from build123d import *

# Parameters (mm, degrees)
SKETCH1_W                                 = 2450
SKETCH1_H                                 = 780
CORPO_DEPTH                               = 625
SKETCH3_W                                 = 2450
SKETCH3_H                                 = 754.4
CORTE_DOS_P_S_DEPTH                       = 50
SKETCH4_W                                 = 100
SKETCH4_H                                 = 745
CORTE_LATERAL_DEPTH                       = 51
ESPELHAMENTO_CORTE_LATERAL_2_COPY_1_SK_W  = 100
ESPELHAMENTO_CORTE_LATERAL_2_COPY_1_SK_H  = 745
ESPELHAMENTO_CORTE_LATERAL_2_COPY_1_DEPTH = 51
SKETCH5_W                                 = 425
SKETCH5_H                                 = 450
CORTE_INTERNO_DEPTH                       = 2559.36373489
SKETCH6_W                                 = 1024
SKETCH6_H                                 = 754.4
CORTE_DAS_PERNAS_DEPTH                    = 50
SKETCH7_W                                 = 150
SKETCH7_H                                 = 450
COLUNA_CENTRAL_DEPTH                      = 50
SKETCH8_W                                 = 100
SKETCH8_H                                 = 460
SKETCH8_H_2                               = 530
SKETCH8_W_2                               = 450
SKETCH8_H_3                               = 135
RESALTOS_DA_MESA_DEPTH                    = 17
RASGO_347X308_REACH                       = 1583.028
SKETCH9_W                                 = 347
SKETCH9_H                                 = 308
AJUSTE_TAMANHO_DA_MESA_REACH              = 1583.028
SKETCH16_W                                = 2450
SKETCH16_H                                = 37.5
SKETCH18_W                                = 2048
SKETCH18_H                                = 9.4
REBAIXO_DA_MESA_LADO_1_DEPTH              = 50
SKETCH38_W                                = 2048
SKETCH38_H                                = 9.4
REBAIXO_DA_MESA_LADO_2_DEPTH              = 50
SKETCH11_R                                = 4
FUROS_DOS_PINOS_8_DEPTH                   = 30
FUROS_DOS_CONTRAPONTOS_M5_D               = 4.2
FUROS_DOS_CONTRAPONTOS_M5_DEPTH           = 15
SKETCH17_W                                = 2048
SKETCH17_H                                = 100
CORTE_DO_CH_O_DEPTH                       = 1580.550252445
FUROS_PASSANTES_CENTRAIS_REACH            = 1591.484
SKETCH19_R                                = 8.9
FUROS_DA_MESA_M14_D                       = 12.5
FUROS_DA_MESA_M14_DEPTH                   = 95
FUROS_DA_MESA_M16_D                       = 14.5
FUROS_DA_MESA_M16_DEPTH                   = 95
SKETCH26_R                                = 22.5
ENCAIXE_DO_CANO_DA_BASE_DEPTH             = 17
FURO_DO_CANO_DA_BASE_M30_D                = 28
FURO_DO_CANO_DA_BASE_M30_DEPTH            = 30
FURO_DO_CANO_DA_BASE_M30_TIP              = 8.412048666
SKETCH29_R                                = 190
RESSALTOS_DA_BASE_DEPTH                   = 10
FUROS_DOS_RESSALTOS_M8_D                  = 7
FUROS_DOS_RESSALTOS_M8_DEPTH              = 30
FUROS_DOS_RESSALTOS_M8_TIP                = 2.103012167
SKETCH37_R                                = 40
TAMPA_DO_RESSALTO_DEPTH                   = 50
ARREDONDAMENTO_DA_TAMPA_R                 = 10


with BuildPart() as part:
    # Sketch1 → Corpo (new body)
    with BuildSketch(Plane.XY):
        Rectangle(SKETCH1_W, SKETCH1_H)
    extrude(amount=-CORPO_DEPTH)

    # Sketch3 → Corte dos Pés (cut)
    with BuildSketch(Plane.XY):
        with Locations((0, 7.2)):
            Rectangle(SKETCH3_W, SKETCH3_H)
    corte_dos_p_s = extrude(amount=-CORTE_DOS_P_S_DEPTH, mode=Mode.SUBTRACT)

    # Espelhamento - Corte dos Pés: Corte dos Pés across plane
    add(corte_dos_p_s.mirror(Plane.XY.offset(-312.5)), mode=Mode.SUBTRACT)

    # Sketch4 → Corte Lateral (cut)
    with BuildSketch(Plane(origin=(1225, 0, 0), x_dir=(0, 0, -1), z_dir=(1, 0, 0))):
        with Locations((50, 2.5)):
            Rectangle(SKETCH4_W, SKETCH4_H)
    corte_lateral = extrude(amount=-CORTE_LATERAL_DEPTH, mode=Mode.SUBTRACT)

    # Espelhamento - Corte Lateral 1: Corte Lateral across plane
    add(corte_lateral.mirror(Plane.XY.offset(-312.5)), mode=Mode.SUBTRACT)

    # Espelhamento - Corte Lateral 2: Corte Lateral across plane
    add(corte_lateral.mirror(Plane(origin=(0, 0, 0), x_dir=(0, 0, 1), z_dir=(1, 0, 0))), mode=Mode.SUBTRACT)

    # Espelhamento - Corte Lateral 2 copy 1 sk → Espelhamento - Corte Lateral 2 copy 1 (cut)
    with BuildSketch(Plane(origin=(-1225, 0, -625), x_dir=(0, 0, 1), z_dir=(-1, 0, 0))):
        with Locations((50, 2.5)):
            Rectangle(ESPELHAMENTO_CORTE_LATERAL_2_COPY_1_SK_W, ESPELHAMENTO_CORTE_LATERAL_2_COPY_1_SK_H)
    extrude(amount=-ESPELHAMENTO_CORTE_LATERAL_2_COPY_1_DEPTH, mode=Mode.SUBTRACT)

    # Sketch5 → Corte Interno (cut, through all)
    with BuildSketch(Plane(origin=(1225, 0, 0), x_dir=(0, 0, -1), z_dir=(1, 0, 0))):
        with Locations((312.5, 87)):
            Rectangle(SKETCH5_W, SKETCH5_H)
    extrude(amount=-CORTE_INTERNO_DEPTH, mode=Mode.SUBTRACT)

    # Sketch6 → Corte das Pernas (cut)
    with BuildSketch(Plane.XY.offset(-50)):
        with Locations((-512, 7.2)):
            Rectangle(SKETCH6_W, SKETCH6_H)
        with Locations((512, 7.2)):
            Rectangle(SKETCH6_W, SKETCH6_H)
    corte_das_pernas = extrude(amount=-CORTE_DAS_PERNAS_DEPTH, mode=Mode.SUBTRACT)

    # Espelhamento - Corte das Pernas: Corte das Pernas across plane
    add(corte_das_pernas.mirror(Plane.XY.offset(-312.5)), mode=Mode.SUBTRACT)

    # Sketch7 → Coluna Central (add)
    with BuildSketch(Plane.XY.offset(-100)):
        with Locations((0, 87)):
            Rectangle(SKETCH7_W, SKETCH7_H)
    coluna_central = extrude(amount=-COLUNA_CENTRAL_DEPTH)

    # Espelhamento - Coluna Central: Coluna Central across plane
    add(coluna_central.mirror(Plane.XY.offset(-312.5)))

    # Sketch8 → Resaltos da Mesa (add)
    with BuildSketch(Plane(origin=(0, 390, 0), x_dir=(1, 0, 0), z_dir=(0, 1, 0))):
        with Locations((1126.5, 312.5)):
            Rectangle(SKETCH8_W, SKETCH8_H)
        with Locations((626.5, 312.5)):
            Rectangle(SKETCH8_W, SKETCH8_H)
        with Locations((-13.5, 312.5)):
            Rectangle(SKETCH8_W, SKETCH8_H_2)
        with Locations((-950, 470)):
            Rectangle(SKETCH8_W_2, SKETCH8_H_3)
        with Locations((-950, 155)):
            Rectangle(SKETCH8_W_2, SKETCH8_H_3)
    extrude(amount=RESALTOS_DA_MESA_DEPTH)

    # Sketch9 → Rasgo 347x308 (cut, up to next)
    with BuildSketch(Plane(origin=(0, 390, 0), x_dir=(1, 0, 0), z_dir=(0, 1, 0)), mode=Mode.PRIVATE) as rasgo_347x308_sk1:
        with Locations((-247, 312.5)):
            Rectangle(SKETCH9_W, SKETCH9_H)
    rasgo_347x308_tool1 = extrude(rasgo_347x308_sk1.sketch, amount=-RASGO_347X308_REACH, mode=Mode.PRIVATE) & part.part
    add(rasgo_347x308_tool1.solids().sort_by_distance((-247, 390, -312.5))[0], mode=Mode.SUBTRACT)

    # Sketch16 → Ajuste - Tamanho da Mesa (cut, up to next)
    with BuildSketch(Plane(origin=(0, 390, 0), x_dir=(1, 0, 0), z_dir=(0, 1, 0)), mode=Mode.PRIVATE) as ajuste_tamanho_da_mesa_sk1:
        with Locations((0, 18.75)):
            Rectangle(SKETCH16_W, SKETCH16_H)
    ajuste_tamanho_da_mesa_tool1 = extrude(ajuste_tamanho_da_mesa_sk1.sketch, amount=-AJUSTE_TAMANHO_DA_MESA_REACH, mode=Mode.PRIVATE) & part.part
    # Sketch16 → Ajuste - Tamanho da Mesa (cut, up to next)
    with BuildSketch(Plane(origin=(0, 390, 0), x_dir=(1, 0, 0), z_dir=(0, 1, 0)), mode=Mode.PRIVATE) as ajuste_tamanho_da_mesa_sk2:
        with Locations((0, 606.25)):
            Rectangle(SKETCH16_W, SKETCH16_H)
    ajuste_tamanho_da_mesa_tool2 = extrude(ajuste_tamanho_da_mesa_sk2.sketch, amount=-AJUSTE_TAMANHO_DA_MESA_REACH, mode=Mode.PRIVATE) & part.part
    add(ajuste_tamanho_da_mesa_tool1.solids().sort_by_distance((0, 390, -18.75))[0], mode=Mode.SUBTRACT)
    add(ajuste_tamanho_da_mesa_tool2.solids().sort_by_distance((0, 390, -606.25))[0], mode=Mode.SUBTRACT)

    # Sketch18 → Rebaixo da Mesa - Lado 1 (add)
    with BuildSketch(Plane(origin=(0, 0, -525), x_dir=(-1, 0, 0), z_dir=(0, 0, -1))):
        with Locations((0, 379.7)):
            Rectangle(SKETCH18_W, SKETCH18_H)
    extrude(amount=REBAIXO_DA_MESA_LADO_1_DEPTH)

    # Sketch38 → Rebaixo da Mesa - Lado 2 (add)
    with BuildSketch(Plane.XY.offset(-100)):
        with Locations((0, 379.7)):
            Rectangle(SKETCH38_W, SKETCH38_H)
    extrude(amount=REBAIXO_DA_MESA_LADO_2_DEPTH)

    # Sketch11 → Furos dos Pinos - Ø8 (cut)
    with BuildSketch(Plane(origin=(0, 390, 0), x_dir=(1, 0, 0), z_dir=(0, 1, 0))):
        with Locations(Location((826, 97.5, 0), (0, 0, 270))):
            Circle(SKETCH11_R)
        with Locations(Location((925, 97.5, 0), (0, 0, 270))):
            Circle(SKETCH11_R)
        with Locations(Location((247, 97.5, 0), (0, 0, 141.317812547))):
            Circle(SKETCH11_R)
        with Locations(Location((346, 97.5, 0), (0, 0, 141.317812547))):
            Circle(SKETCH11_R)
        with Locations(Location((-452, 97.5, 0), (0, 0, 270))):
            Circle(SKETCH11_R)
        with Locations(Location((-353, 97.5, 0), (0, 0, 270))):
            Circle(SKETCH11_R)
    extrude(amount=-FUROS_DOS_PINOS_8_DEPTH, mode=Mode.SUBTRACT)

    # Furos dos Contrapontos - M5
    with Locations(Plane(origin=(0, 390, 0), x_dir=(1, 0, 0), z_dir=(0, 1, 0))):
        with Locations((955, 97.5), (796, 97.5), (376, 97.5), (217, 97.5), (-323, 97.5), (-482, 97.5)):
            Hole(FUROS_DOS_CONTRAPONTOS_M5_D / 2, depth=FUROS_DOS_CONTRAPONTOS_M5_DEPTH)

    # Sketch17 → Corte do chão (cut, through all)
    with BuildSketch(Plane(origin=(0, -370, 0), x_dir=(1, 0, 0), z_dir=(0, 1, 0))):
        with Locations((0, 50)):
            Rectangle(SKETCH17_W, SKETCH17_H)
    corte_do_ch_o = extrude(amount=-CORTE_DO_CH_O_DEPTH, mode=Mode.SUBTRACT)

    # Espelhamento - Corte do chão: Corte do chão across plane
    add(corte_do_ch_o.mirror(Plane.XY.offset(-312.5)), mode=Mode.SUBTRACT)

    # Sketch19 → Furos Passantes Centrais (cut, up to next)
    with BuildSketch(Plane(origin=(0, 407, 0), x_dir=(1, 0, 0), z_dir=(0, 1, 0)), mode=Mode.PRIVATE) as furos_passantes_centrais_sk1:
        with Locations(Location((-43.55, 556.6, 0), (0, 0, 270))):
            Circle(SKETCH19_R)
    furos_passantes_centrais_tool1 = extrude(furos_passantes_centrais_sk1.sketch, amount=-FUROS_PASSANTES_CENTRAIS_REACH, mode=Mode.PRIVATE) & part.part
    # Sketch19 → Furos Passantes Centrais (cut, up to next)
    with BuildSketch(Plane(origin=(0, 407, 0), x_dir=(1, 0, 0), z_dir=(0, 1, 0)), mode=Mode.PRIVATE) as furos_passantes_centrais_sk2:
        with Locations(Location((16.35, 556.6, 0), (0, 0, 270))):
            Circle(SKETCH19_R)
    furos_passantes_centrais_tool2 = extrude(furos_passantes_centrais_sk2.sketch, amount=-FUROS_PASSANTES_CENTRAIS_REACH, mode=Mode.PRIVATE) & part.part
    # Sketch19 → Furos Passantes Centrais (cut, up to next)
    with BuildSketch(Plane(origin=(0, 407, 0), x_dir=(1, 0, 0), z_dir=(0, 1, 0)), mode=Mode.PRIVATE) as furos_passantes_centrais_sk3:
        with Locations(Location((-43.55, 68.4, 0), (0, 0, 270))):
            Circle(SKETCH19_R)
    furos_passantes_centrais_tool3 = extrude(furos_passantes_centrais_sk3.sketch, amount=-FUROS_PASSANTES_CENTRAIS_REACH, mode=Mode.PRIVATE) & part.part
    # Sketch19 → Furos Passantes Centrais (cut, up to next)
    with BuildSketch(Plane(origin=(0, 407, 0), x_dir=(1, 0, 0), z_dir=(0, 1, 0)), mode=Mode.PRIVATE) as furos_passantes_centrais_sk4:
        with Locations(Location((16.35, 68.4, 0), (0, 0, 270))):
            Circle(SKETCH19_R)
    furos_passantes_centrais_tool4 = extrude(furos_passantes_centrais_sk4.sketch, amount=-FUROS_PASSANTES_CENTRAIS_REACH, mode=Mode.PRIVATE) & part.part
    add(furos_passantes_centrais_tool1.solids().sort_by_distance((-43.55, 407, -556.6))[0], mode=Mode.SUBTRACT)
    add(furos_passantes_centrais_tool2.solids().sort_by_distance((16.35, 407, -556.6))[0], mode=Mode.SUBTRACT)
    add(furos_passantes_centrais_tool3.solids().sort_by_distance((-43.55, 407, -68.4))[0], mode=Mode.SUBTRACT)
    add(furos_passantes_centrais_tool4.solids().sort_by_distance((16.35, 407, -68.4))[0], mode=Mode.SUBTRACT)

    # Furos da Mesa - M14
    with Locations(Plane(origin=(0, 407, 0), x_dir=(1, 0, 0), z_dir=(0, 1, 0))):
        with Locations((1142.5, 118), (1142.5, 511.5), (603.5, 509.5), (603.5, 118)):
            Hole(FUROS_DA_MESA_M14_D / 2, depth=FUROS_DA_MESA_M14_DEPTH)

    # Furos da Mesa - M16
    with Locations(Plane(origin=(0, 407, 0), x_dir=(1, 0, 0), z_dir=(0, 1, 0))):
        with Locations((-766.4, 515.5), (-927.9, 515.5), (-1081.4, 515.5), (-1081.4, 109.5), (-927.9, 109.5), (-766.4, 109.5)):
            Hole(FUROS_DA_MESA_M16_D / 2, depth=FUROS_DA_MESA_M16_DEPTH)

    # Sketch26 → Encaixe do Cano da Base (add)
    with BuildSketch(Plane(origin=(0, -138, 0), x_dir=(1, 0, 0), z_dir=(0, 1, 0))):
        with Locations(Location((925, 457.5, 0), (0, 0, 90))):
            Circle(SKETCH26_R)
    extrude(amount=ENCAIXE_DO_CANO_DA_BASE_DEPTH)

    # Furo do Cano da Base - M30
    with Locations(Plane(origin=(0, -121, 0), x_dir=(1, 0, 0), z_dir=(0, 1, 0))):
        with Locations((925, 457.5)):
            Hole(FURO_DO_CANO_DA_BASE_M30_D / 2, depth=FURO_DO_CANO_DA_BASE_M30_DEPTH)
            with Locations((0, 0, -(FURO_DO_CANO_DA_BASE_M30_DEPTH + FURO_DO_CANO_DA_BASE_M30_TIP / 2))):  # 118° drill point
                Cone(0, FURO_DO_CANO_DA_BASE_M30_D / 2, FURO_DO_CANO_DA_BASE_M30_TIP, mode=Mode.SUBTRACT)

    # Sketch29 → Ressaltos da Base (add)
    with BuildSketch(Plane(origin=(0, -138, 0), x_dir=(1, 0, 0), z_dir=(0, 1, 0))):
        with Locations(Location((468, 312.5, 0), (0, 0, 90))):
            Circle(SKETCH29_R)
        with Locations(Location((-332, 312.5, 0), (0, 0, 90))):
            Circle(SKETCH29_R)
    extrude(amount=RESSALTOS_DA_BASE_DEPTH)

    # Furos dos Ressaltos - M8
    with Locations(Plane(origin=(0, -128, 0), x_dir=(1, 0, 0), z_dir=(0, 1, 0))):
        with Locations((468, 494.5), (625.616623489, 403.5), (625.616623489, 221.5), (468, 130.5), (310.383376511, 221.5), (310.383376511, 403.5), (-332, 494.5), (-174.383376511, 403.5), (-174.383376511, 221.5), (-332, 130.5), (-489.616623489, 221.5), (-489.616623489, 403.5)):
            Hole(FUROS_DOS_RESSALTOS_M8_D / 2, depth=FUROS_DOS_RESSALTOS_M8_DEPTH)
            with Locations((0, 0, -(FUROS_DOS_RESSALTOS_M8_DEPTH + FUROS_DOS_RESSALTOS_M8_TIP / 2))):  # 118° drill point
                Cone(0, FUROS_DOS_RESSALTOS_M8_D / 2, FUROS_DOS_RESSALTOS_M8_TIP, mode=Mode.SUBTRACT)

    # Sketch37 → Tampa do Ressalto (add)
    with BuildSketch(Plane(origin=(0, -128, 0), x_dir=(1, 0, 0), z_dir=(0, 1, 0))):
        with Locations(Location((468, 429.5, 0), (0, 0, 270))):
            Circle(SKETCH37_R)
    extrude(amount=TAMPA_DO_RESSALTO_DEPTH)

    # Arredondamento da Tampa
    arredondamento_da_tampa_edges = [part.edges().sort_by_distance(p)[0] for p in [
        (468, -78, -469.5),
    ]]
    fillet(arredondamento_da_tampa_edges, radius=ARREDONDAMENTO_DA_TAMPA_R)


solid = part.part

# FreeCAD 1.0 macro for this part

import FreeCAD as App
import Part
import Sketcher

V = App.Vector


def edges_at(feature, points):
    """Names of the edges that pass closest to the given points."""
    edges = feature.Shape.Edges
    near = lambda p: min(range(len(edges)), key=lambda i: edges[i].distToShape(Part.Vertex(*p))[0])
    return sorted({f"Edge{near(p) + 1}" for p in points})

doc = App.newDocument("Part")
body = doc.addObject("PartDesign::Body", "Body")

sketch1 = body.newObject("Sketcher::SketchObject", "Sketch")
sketch1.AttachmentSupport = (doc.getObject("XY_Plane"), [""])
sketch1.MapMode = "FlatFace"
sketch1.addGeometry([
    Part.LineSegment(V(-1225, 390, 0), V(-1225, -390, 0)),
    Part.LineSegment(V(-1225, -390, 0), V(1225, -390, 0)),
    Part.LineSegment(V(1225, -390, 0), V(1225, 390, 0)),
    Part.LineSegment(V(1225, 390, 0), V(-1225, 390, 0)),
], False)
sketch1.addConstraint([
    Sketcher.Constraint("Coincident", 0, 2, 1, 1),
    Sketcher.Constraint("Coincident", 1, 2, 2, 1),
    Sketcher.Constraint("Coincident", 2, 2, 3, 1),
    Sketcher.Constraint("Coincident", 3, 2, 0, 1),
    Sketcher.Constraint("Vertical", 0),
    Sketcher.Constraint("Horizontal", 1),
    Sketcher.Constraint("Vertical", 2),
    Sketcher.Constraint("Horizontal", 3),
    Sketcher.Constraint("Symmetric", 0, 2, 2, 2, -1, 1),
    Sketcher.Constraint("DistanceX", 1, 1, 1, 2, 2450.0),
    Sketcher.Constraint("DistanceY", 0, 2, 0, 1, 780.0),
])
pad1 = body.newObject("PartDesign::Pad", "Pad")
pad1.Profile = sketch1
pad1.Length = 625
pad1.Reversed = True

sketch2 = body.newObject("Sketcher::SketchObject", "Sketch001")
sketch2.AttachmentSupport = (doc.getObject("XY_Plane"), [""])
sketch2.MapMode = "FlatFace"
sketch2.addGeometry([
    Part.LineSegment(V(-1225, 384, 0), V(-1225, -370, 0)),
    Part.LineSegment(V(-1225, -370, 0), V(1225, -370, 0)),
    Part.LineSegment(V(1225, -370, 0), V(1225, 384, 0)),
    Part.LineSegment(V(1225, 384, 0), V(-1225, 384, 0)),
], False)
sketch2.addConstraint([
    Sketcher.Constraint("Coincident", 0, 2, 1, 1),
    Sketcher.Constraint("Coincident", 1, 2, 2, 1),
    Sketcher.Constraint("Coincident", 2, 2, 3, 1),
    Sketcher.Constraint("Coincident", 3, 2, 0, 1),
    Sketcher.Constraint("Vertical", 0),
    Sketcher.Constraint("Horizontal", 1),
    Sketcher.Constraint("Vertical", 2),
    Sketcher.Constraint("Horizontal", 3),
    Sketcher.Constraint("DistanceX", 1, 1, 1, 2, 2450.0),
    Sketcher.Constraint("DistanceY", 0, 2, 0, 1, 754.4),
    Sketcher.Constraint("DistanceX", 0, 2, -1, 1, 1225.0),
    Sketcher.Constraint("DistanceY", 0, 2, -1, 1, 370.0),
])
pocket1 = body.newObject("PartDesign::Pocket", "Pocket")
pocket1.Profile = sketch2
pocket1.Length = 50
doc.recompute()

datumplane = body.newObject("PartDesign::Plane", "DatumPlane")
datumplane.AttachmentSupport = (doc.getObject("XY_Plane"), [""])
datumplane.MapMode = "FlatFace"
datumplane.AttachmentOffset = App.Placement(V(0, 0, -312.5), App.Rotation())
mirrored = body.newObject("PartDesign::Mirrored", "Mirrored")
mirrored.Originals = [pocket1]
mirrored.MirrorPlane = (datumplane, [""])
body.Tip = mirrored

sketch3 = body.newObject("Sketcher::SketchObject", "Sketch002")
sketch3.AttachmentSupport = (doc.getObject("YZ_Plane"), [""])
sketch3.MapMode = "FlatFace"
sketch3.AttachmentOffset = App.Placement(V(0, 0, 1225), App.Rotation())
sketch3.addGeometry([
    Part.LineSegment(V(375, 0, 0), V(-370, 0, 0)),
    Part.LineSegment(V(-370, 0, 0), V(-370, -100, 0)),
    Part.LineSegment(V(-370, -100, 0), V(375, -100, 0)),
    Part.LineSegment(V(375, -100, 0), V(375, 0, 0)),
], False)
sketch3.addConstraint([
    Sketcher.Constraint("Coincident", 0, 2, 1, 1),
    Sketcher.Constraint("Coincident", 1, 2, 2, 1),
    Sketcher.Constraint("Coincident", 2, 2, 3, 1),
    Sketcher.Constraint("Coincident", 3, 2, 0, 1),
    Sketcher.Constraint("Horizontal", 0),
    Sketcher.Constraint("Vertical", 1),
    Sketcher.Constraint("Horizontal", 2),
    Sketcher.Constraint("Vertical", 3),
    Sketcher.Constraint("PointOnObject", 0, 2, -1),
    Sketcher.Constraint("DistanceX", 0, 2, 0, 1, 745.0),
    Sketcher.Constraint("DistanceY", 1, 2, 1, 1, 100.0),
    Sketcher.Constraint("DistanceX", 0, 2, -1, 1, 370.0),
])
pocket2 = body.newObject("PartDesign::Pocket", "Pocket001")
pocket2.Profile = sketch3
pocket2.Length = 51
doc.recompute()

datumplane2 = body.newObject("PartDesign::Plane", "DatumPlane001")
datumplane2.AttachmentSupport = (doc.getObject("XY_Plane"), [""])
datumplane2.MapMode = "FlatFace"
datumplane2.AttachmentOffset = App.Placement(V(0, 0, -312.5), App.Rotation())
mirrored2 = body.newObject("PartDesign::Mirrored", "Mirrored001")
mirrored2.Originals = [pocket2]
mirrored2.MirrorPlane = (datumplane2, [""])
body.Tip = mirrored2
doc.recompute()

mirrored3 = body.newObject("PartDesign::Mirrored", "Mirrored002")
mirrored3.Originals = [pocket2]
mirrored3.MirrorPlane = (doc.getObject("YZ_Plane"), [""])
body.Tip = mirrored3

sketch4 = body.newObject("Sketcher::SketchObject", "Sketch003")
sketch4.AttachmentSupport = (doc.getObject("YZ_Plane"), [""])
sketch4.MapMode = "FlatFace"
sketch4.AttachmentOffset = App.Placement(V(0, 0, -1225), App.Rotation())
sketch4.addGeometry([
    Part.LineSegment(V(375, -625, 0), V(-370, -625, 0)),
    Part.LineSegment(V(-370, -625, 0), V(-370, -525, 0)),
    Part.LineSegment(V(-370, -525, 0), V(375, -525, 0)),
    Part.LineSegment(V(375, -525, 0), V(375, -625, 0)),
], False)
sketch4.addConstraint([
    Sketcher.Constraint("Coincident", 0, 2, 1, 1),
    Sketcher.Constraint("Coincident", 1, 2, 2, 1),
    Sketcher.Constraint("Coincident", 2, 2, 3, 1),
    Sketcher.Constraint("Coincident", 3, 2, 0, 1),
    Sketcher.Constraint("Horizontal", 0),
    Sketcher.Constraint("Vertical", 1),
    Sketcher.Constraint("Horizontal", 2),
    Sketcher.Constraint("Vertical", 3),
    Sketcher.Constraint("DistanceX", 0, 2, 0, 1, 745.0),
    Sketcher.Constraint("DistanceY", 1, 1, 1, 2, 100.0),
    Sketcher.Constraint("DistanceX", 0, 2, -1, 1, 370.0),
    Sketcher.Constraint("DistanceY", 0, 2, -1, 1, 625.0),
])
pocket3 = body.newObject("PartDesign::Pocket", "Pocket002")
pocket3.Profile = sketch4
pocket3.Length = 51
pocket3.Reversed = True

sketch5 = body.newObject("Sketcher::SketchObject", "Sketch004")
sketch5.AttachmentSupport = (doc.getObject("YZ_Plane"), [""])
sketch5.MapMode = "FlatFace"
sketch5.AttachmentOffset = App.Placement(V(0, 0, 1225), App.Rotation())
sketch5.addGeometry([
    Part.LineSegment(V(312, -100, 0), V(-138, -100, 0)),
    Part.LineSegment(V(-138, -100, 0), V(-138, -525, 0)),
    Part.LineSegment(V(-138, -525, 0), V(312, -525, 0)),
    Part.LineSegment(V(312, -525, 0), V(312, -100, 0)),
], False)
sketch5.addConstraint([
    Sketcher.Constraint("Coincident", 0, 2, 1, 1),
    Sketcher.Constraint("Coincident", 1, 2, 2, 1),
    Sketcher.Constraint("Coincident", 2, 2, 3, 1),
    Sketcher.Constraint("Coincident", 3, 2, 0, 1),
    Sketcher.Constraint("Horizontal", 0),
    Sketcher.Constraint("Vertical", 1),
    Sketcher.Constraint("Horizontal", 2),
    Sketcher.Constraint("Vertical", 3),
    Sketcher.Constraint("DistanceX", 0, 2, 0, 1, 450.0),
    Sketcher.Constraint("DistanceY", 1, 2, 1, 1, 425.0),
    Sketcher.Constraint("DistanceX", 0, 2, -1, 1, 138.0),
    Sketcher.Constraint("DistanceY", 0, 2, -1, 1, 100.0),
])
pocket4 = body.newObject("PartDesign::Pocket", "Pocket003")
pocket4.Profile = sketch5
pocket4.Type = "ThroughAll"

sketch6 = body.newObject("Sketcher::SketchObject", "Sketch005")
sketch6.AttachmentSupport = (doc.getObject("XY_Plane"), [""])
sketch6.MapMode = "FlatFace"
sketch6.AttachmentOffset = App.Placement(V(0, 0, -50), App.Rotation())
sketch6.addGeometry([
    Part.LineSegment(V(-1024, 384, 0), V(-1024, -370, 0)),
    Part.LineSegment(V(-1024, -370, 0), V(1024, -370, 0)),
    Part.LineSegment(V(1024, -370, 0), V(1024, 384, 0)),
    Part.LineSegment(V(1024, 384, 0), V(-1024, 384, 0)),
], False)
sketch6.addConstraint([
    Sketcher.Constraint("Coincident", 0, 2, 1, 1),
    Sketcher.Constraint("Coincident", 1, 2, 2, 1),
    Sketcher.Constraint("Coincident", 2, 2, 3, 1),
    Sketcher.Constraint("Coincident", 3, 2, 0, 1),
    Sketcher.Constraint("Vertical", 0),
    Sketcher.Constraint("Horizontal", 1),
    Sketcher.Constraint("Vertical", 2),
    Sketcher.Constraint("Horizontal", 3),
    Sketcher.Constraint("DistanceX", 1, 1, 1, 2, 2048.0),
    Sketcher.Constraint("DistanceY", 0, 2, 0, 1, 754.4),
    Sketcher.Constraint("DistanceX", 0, 2, -1, 1, 1024.0),
    Sketcher.Constraint("DistanceY", 0, 2, -1, 1, 370.0),
])
pocket5 = body.newObject("PartDesign::Pocket", "Pocket004")
pocket5.Profile = sketch6
pocket5.Length = 50
doc.recompute()

datumplane3 = body.newObject("PartDesign::Plane", "DatumPlane002")
datumplane3.AttachmentSupport = (doc.getObject("XY_Plane"), [""])
datumplane3.MapMode = "FlatFace"
datumplane3.AttachmentOffset = App.Placement(V(0, 0, -312.5), App.Rotation())
mirrored4 = body.newObject("PartDesign::Mirrored", "Mirrored003")
mirrored4.Originals = [pocket5]
mirrored4.MirrorPlane = (datumplane3, [""])
body.Tip = mirrored4

sketch7 = body.newObject("Sketcher::SketchObject", "Sketch006")
sketch7.AttachmentSupport = (doc.getObject("XY_Plane"), [""])
sketch7.MapMode = "FlatFace"
sketch7.AttachmentOffset = App.Placement(V(0, 0, -100), App.Rotation())
sketch7.addGeometry([
    Part.LineSegment(V(-75, 312, 0), V(-75, -138, 0)),
    Part.LineSegment(V(-75, -138, 0), V(75, -138, 0)),
    Part.LineSegment(V(75, -138, 0), V(75, 312, 0)),
    Part.LineSegment(V(75, 312, 0), V(-75, 312, 0)),
], False)
sketch7.addConstraint([
    Sketcher.Constraint("Coincident", 0, 2, 1, 1),
    Sketcher.Constraint("Coincident", 1, 2, 2, 1),
    Sketcher.Constraint("Coincident", 2, 2, 3, 1),
    Sketcher.Constraint("Coincident", 3, 2, 0, 1),
    Sketcher.Constraint("Vertical", 0),
    Sketcher.Constraint("Horizontal", 1),
    Sketcher.Constraint("Vertical", 2),
    Sketcher.Constraint("Horizontal", 3),
    Sketcher.Constraint("DistanceX", 1, 1, 1, 2, 150.0),
    Sketcher.Constraint("DistanceY", 0, 2, 0, 1, 450.0),
    Sketcher.Constraint("DistanceX", 0, 2, -1, 1, 75.0),
    Sketcher.Constraint("DistanceY", 0, 2, -1, 1, 138.0),
])
pad2 = body.newObject("PartDesign::Pad", "Pad001")
pad2.Profile = sketch7
pad2.Length = 50
pad2.Reversed = True
doc.recompute()

datumplane4 = body.newObject("PartDesign::Plane", "DatumPlane003")
datumplane4.AttachmentSupport = (doc.getObject("XY_Plane"), [""])
datumplane4.MapMode = "FlatFace"
datumplane4.AttachmentOffset = App.Placement(V(0, 0, -312.5), App.Rotation())
mirrored5 = body.newObject("PartDesign::Mirrored", "Mirrored004")
mirrored5.Originals = [pad2]
mirrored5.MirrorPlane = (datumplane4, [""])
body.Tip = mirrored5

sketch8 = body.newObject("Sketcher::SketchObject", "Sketch007")
sketch8.AttachmentSupport = (doc.getObject("XZ_Plane"), [""])
sketch8.MapMode = "FlatFace"
sketch8.AttachmentOffset = App.Placement(V(0, 0, -390), App.Rotation())
sketch8.addGeometry([
    Part.LineSegment(V(1076, -542, 0), V(1076, -82, 0)),
    Part.LineSegment(V(1076, -82, 0), V(1176, -82, 0)),
    Part.LineSegment(V(1176, -82, 0), V(1176, -542, 0)),
    Part.LineSegment(V(1176, -542, 0), V(1076, -542, 0)),
    Part.LineSegment(V(576, -542, 0), V(576, -82, 0)),
    Part.LineSegment(V(576, -82, 0), V(676, -82, 0)),
    Part.LineSegment(V(676, -82, 0), V(676, -542, 0)),
    Part.LineSegment(V(676, -542, 0), V(576, -542, 0)),
    Part.LineSegment(V(-64, -578, 0), V(-64, -48, 0)),
    Part.LineSegment(V(-64, -48, 0), V(36, -48, 0)),
    Part.LineSegment(V(36, -48, 0), V(36, -578, 0)),
    Part.LineSegment(V(36, -578, 0), V(-64, -578, 0)),
    Part.LineSegment(V(-1175, -538, 0), V(-1175, -402, 0)),
    Part.LineSegment(V(-1175, -402, 0), V(-725, -402, 0)),
    Part.LineSegment(V(-725, -402, 0), V(-725, -538, 0)),
    Part.LineSegment(V(-725, -538, 0), V(-1175, -538, 0)),
    Part.LineSegment(V(-1175, -222, 0), V(-1175, -88, 0)),
    Part.LineSegment(V(-1175, -88, 0), V(-725, -88, 0)),
    Part.LineSegment(V(-725, -88, 0), V(-725, -222, 0)),
    Part.LineSegment(V(-725, -222, 0), V(-1175, -222, 0)),
], False)
sketch8.addConstraint([
    Sketcher.Constraint("Coincident", 0, 2, 1, 1),
    Sketcher.Constraint("Coincident", 1, 2, 2, 1),
    Sketcher.Constraint("Coincident", 2, 2, 3, 1),
    Sketcher.Constraint("Coincident", 3, 2, 0, 1),
    Sketcher.Constraint("Coincident", 4, 2, 5, 1),
    Sketcher.Constraint("Coincident", 5, 2, 6, 1),
    Sketcher.Constraint("Coincident", 6, 2, 7, 1),
    Sketcher.Constraint("Coincident", 7, 2, 4, 1),
    Sketcher.Constraint("Coincident", 8, 2, 9, 1),
    Sketcher.Constraint("Coincident", 9, 2, 10, 1),
    Sketcher.Constraint("Coincident", 10, 2, 11, 1),
    Sketcher.Constraint("Coincident", 11, 2, 8, 1),
    Sketcher.Constraint("Coincident", 12, 2, 13, 1),
    Sketcher.Constraint("Coincident", 13, 2, 14, 1),
    Sketcher.Constraint("Coincident", 14, 2, 15, 1),
    Sketcher.Constraint("Coincident", 15, 2, 12, 1),
    Sketcher.Constraint("Coincident", 16, 2, 17, 1),
    Sketcher.Constraint("Coincident", 17, 2, 18, 1),
    Sketcher.Constraint("Coincident", 18, 2, 19, 1),
    Sketcher.Constraint("Coincident", 19, 2, 16, 1),
    Sketcher.Constraint("Vertical", 0),
    Sketcher.Constraint("Horizontal", 1),
    Sketcher.Constraint("Vertical", 2),
    Sketcher.Constraint("Horizontal", 3),
    Sketcher.Constraint("Vertical", 4),
    Sketcher.Constraint("Horizontal", 5),
    Sketcher.Constraint("Vertical", 6),
    Sketcher.Constraint("Horizontal", 7),
    Sketcher.Constraint("Vertical", 8),
    Sketcher.Constraint("Horizontal", 9),
    Sketcher.Constraint("Vertical", 10),
    Sketcher.Constraint("Horizontal", 11),
    Sketcher.Constraint("Vertical", 12),
    Sketcher.Constraint("Horizontal", 13),
    Sketcher.Constraint("Vertical", 14),
    Sketcher.Constraint("Horizontal", 15),
    Sketcher.Constraint("Vertical", 16),
    Sketcher.Constraint("Horizontal", 17),
    Sketcher.Constraint("Vertical", 18),
    Sketcher.Constraint("Horizontal", 19),
    Sketcher.Constraint("Horizontal", 1, 2, 4, 2),
    Sketcher.Constraint("Horizontal", 3, 2, 6, 2),
    Sketcher.Constraint("Vertical", 15, 2, 16, 2),
    Sketcher.Constraint("Vertical", 14, 2, 17, 2),
    Sketcher.Constraint("Equal", 3, 5),
    Sketcher.Constraint("Equal", 7, 9),
    Sketcher.Constraint("Equal", 14, 16),
    Sketcher.Constraint("DistanceX", 1, 1, 1, 2, 100.0),
    Sketcher.Constraint("DistanceX", 13, 1, 13, 2, 450.0),
    Sketcher.Constraint("DistanceY", 0, 1, 0, 2, 460.0),
    Sketcher.Constraint("DistanceY", 8, 1, 8, 2, 530.0),
    Sketcher.Constraint("DistanceY", 12, 1, 12, 2, 135.0),
    Sketcher.Constraint("DistanceX", 12, 2, -1, 1, 1175.0),
    Sketcher.Constraint("DistanceX", 4, 2, 0, 2, 500.0),
    Sketcher.Constraint("DistanceX", 8, 2, 4, 2, 640.0),
    Sketcher.Constraint("DistanceY", 4, 2, 8, 2, 35.0),
    Sketcher.Constraint("DistanceY", 11, 2, 12, 2, 175.0),
    Sketcher.Constraint("DistanceY", 12, 2, 16, 2, 315.0),
    Sketcher.Constraint("DistanceX", -1, 1, 0, 2, 1076.5),
    Sketcher.Constraint("DistanceY", 0, 2, -1, 1, 82.5),
])
pad3 = body.newObject("PartDesign::Pad", "Pad002")
pad3.Profile = sketch8
pad3.Length = 17
pad3.Reversed = True

sketch9 = body.newObject("Sketcher::SketchObject", "Sketch008")
sketch9.AttachmentSupport = (doc.getObject("XZ_Plane"), [""])
sketch9.MapMode = "FlatFace"
sketch9.AttachmentOffset = App.Placement(V(0, 0, -390), App.Rotation())
sketch9.addGeometry([
    Part.LineSegment(V(-420, -466, 0), V(-420, -158, 0)),
    Part.LineSegment(V(-420, -158, 0), V(-74, -158, 0)),
    Part.LineSegment(V(-74, -158, 0), V(-74, -466, 0)),
    Part.LineSegment(V(-74, -466, 0), V(-420, -466, 0)),
], False)
sketch9.addConstraint([
    Sketcher.Constraint("Coincident", 0, 2, 1, 1),
    Sketcher.Constraint("Coincident", 1, 2, 2, 1),
    Sketcher.Constraint("Coincident", 2, 2, 3, 1),
    Sketcher.Constraint("Coincident", 3, 2, 0, 1),
    Sketcher.Constraint("Vertical", 0),
    Sketcher.Constraint("Horizontal", 1),
    Sketcher.Constraint("Vertical", 2),
    Sketcher.Constraint("Horizontal", 3),
    Sketcher.Constraint("DistanceX", 1, 1, 1, 2, 347.0),
    Sketcher.Constraint("DistanceY", 0, 1, 0, 2, 308.0),
    Sketcher.Constraint("DistanceX", 0, 2, -1, 1, 420.5),
    Sketcher.Constraint("DistanceY", 0, 2, -1, 1, 158.5),
])
pocket6 = body.newObject("PartDesign::Pocket", "Pocket005")
pocket6.Profile = sketch9
pocket6.Type = "UpToFirst"
pocket6.Reversed = True

sketch10 = body.newObject("Sketcher::SketchObject", "Sketch009")
sketch10.AttachmentSupport = (doc.getObject("XZ_Plane"), [""])
sketch10.MapMode = "FlatFace"
sketch10.AttachmentOffset = App.Placement(V(0, 0, -390), App.Rotation())
sketch10.addGeometry([
    Part.LineSegment(V(-1225, -38, 0), V(-1225, 0, 0)),
    Part.LineSegment(V(-1225, 0, 0), V(1225, 0, 0)),
    Part.LineSegment(V(1225, 0, 0), V(1225, -38, 0)),
    Part.LineSegment(V(1225, -38, 0), V(-1225, -38, 0)),
], False)
sketch10.addConstraint([
    Sketcher.Constraint("Coincident", 0, 2, 1, 1),
    Sketcher.Constraint("Coincident", 1, 2, 2, 1),
    Sketcher.Constraint("Coincident", 2, 2, 3, 1),
    Sketcher.Constraint("Coincident", 3, 2, 0, 1),
    Sketcher.Constraint("Vertical", 0),
    Sketcher.Constraint("Horizontal", 1),
    Sketcher.Constraint("Vertical", 2),
    Sketcher.Constraint("Horizontal", 3),
    Sketcher.Constraint("Symmetric", 0, 2, 1, 2, -1, 1),
    Sketcher.Constraint("DistanceX", 1, 1, 1, 2, 2450.0),
    Sketcher.Constraint("DistanceY", 0, 1, 0, 2, 37.5),
])
pocket7 = body.newObject("PartDesign::Pocket", "Pocket006")
pocket7.Profile = sketch10
pocket7.Type = "UpToFirst"
pocket7.Reversed = True

sketch11 = body.newObject("Sketcher::SketchObject", "Sketch010")
sketch11.AttachmentSupport = (doc.getObject("XZ_Plane"), [""])
sketch11.MapMode = "FlatFace"
sketch11.AttachmentOffset = App.Placement(V(0, 0, -390), App.Rotation())
sketch11.addGeometry([
    Part.LineSegment(V(-1225, -625, 0), V(-1225, -588, 0)),
    Part.LineSegment(V(-1225, -588, 0), V(1225, -588, 0)),
    Part.LineSegment(V(1225, -588, 0), V(1225, -625, 0)),
    Part.LineSegment(V(1225, -625, 0), V(-1225, -625, 0)),
], False)
sketch11.addConstraint([
    Sketcher.Constraint("Coincident", 0, 2, 1, 1),
    Sketcher.Constraint("Coincident", 1, 2, 2, 1),
    Sketcher.Constraint("Coincident", 2, 2, 3, 1),
    Sketcher.Constraint("Coincident", 3, 2, 0, 1),
    Sketcher.Constraint("Vertical", 0),
    Sketcher.Constraint("Horizontal", 1),
    Sketcher.Constraint("Vertical", 2),
    Sketcher.Constraint("Horizontal", 3),
    Sketcher.Constraint("DistanceX", 1, 1, 1, 2, 2450.0),
    Sketcher.Constraint("DistanceY", 0, 1, 0, 2, 37.5),
    Sketcher.Constraint("DistanceX", 0, 2, -1, 1, 1225.0),
    Sketcher.Constraint("DistanceY", 2, 2, -1, 1, 625.0),
])
pocket8 = body.newObject("PartDesign::Pocket", "Pocket007")
pocket8.Profile = sketch11
pocket8.Type = "UpToFirst"
pocket8.Reversed = True

sketch12 = body.newObject("Sketcher::SketchObject", "Sketch011")
sketch12.AttachmentSupport = (doc.getObject("XY_Plane"), [""])
sketch12.MapMode = "FlatFace"
sketch12.AttachmentOffset = App.Placement(V(0, 0, -525), App.Rotation())
sketch12.addGeometry([
    Part.LineSegment(V(1024, 384, 0), V(1024, 375, 0)),
    Part.LineSegment(V(1024, 375, 0), V(-1024, 375, 0)),
    Part.LineSegment(V(-1024, 375, 0), V(-1024, 384, 0)),
    Part.LineSegment(V(-1024, 384, 0), V(1024, 384, 0)),
], False)
sketch12.addConstraint([
    Sketcher.Constraint("Coincident", 0, 2, 1, 1),
    Sketcher.Constraint("Coincident", 1, 2, 2, 1),
    Sketcher.Constraint("Coincident", 2, 2, 3, 1),
    Sketcher.Constraint("Coincident", 3, 2, 0, 1),
    Sketcher.Constraint("Vertical", 0),
    Sketcher.Constraint("Horizontal", 1),
    Sketcher.Constraint("Vertical", 2),
    Sketcher.Constraint("Horizontal", 3),
    Sketcher.Constraint("DistanceX", 1, 2, 1, 1, 2048.0),
    Sketcher.Constraint("DistanceY", 0, 2, 0, 1, 9.4),
    Sketcher.Constraint("DistanceX", -1, 1, 0, 2, 1024.0),
    Sketcher.Constraint("DistanceY", -1, 1, 0, 2, 375.0),
])
pad4 = body.newObject("PartDesign::Pad", "Pad003")
pad4.Profile = sketch12
pad4.Length = 50
pad4.Reversed = True

sketch13 = body.newObject("Sketcher::SketchObject", "Sketch012")
sketch13.AttachmentSupport = (doc.getObject("XY_Plane"), [""])
sketch13.MapMode = "FlatFace"
sketch13.AttachmentOffset = App.Placement(V(0, 0, -100), App.Rotation())
sketch13.addGeometry([
    Part.LineSegment(V(-1024, 384, 0), V(-1024, 375, 0)),
    Part.LineSegment(V(-1024, 375, 0), V(1024, 375, 0)),
    Part.LineSegment(V(1024, 375, 0), V(1024, 384, 0)),
    Part.LineSegment(V(1024, 384, 0), V(-1024, 384, 0)),
], False)
sketch13.addConstraint([
    Sketcher.Constraint("Coincident", 0, 2, 1, 1),
    Sketcher.Constraint("Coincident", 1, 2, 2, 1),
    Sketcher.Constraint("Coincident", 2, 2, 3, 1),
    Sketcher.Constraint("Coincident", 3, 2, 0, 1),
    Sketcher.Constraint("Vertical", 0),
    Sketcher.Constraint("Horizontal", 1),
    Sketcher.Constraint("Vertical", 2),
    Sketcher.Constraint("Horizontal", 3),
    Sketcher.Constraint("DistanceX", 1, 1, 1, 2, 2048.0),
    Sketcher.Constraint("DistanceY", 0, 2, 0, 1, 9.4),
    Sketcher.Constraint("DistanceX", 0, 2, -1, 1, 1024.0),
    Sketcher.Constraint("DistanceY", -1, 1, 0, 2, 375.0),
])
pad5 = body.newObject("PartDesign::Pad", "Pad004")
pad5.Profile = sketch13
pad5.Length = 50

sketch14 = body.newObject("Sketcher::SketchObject", "Sketch013")
sketch14.AttachmentSupport = (doc.getObject("XZ_Plane"), [""])
sketch14.MapMode = "FlatFace"
sketch14.AttachmentOffset = App.Placement(V(0, 0, -390), App.Rotation())
sketch14.addGeometry([
    Part.Circle(V(826, -97.5, 0), V(0, 0, 1), 4),
    Part.Circle(V(925, -97.5, 0), V(0, 0, 1), 4),
    Part.Circle(V(247, -97.5, 0), V(0, 0, 1), 4),
    Part.Circle(V(346, -97.5, 0), V(0, 0, 1), 4),
    Part.Circle(V(-452, -97.5, 0), V(0, 0, 1), 4),
    Part.Circle(V(-353, -97.5, 0), V(0, 0, 1), 4),
], False)
sketch14.addConstraint([
    Sketcher.Constraint("Equal", 0, 1),
    Sketcher.Constraint("Equal", 1, 2),
    Sketcher.Constraint("Equal", 2, 3),
    Sketcher.Constraint("Equal", 3, 4),
    Sketcher.Constraint("Equal", 4, 5),
    Sketcher.Constraint("Horizontal", 0, 3, 1, 3),
    Sketcher.Constraint("Horizontal", 1, 3, 2, 3),
    Sketcher.Constraint("Horizontal", 2, 3, 3, 3),
    Sketcher.Constraint("Horizontal", 3, 3, 4, 3),
    Sketcher.Constraint("Horizontal", 4, 3, 5, 3),
    Sketcher.Constraint("Diameter", 0, 8.0),
    Sketcher.Constraint("DistanceX", -1, 1, 0, 3, 826.0),
    Sketcher.Constraint("DistanceX", -1, 1, 1, 3, 925.0),
    Sketcher.Constraint("DistanceX", -1, 1, 2, 3, 247.0),
    Sketcher.Constraint("DistanceX", -1, 1, 3, 3, 346.0),
    Sketcher.Constraint("DistanceX", 4, 3, -1, 1, 452.0),
    Sketcher.Constraint("DistanceX", 5, 3, -1, 1, 353.0),
    Sketcher.Constraint("DistanceY", 0, 3, -1, 1, 97.5),
])
pocket9 = body.newObject("PartDesign::Pocket", "Pocket008")
pocket9.Profile = sketch14
pocket9.Length = 30
pocket9.Reversed = True

sketch15 = body.newObject("Sketcher::SketchObject", "Sketch014")
sketch15.AttachmentSupport = (doc.getObject("XZ_Plane"), [""])
sketch15.MapMode = "FlatFace"
sketch15.AttachmentOffset = App.Placement(V(0, 0, -390), App.Rotation())
sketch15.addGeometry([
    Part.Circle(V(955, -97.5, 0), V(0, 0, 1), 2.1),
    Part.Circle(V(796, -97.5, 0), V(0, 0, 1), 2.1),
    Part.Circle(V(376, -97.5, 0), V(0, 0, 1), 2.1),
    Part.Circle(V(217, -97.5, 0), V(0, 0, 1), 2.1),
    Part.Circle(V(-323, -97.5, 0), V(0, 0, 1), 2.1),
    Part.Circle(V(-482, -97.5, 0), V(0, 0, 1), 2.1),
], False)
sketch15.addConstraint([
    Sketcher.Constraint("Equal", 0, 1),
    Sketcher.Constraint("Equal", 1, 2),
    Sketcher.Constraint("Equal", 2, 3),
    Sketcher.Constraint("Equal", 3, 4),
    Sketcher.Constraint("Equal", 4, 5),
    Sketcher.Constraint("Horizontal", 0, 3, 1, 3),
    Sketcher.Constraint("Horizontal", 1, 3, 2, 3),
    Sketcher.Constraint("Horizontal", 2, 3, 3, 3),
    Sketcher.Constraint("Horizontal", 3, 3, 4, 3),
    Sketcher.Constraint("Horizontal", 4, 3, 5, 3),
    Sketcher.Constraint("Diameter", 0, 4.2),
    Sketcher.Constraint("DistanceX", -1, 1, 0, 3, 955.0),
    Sketcher.Constraint("DistanceX", -1, 1, 1, 3, 796.0),
    Sketcher.Constraint("DistanceX", -1, 1, 2, 3, 376.0),
    Sketcher.Constraint("DistanceX", -1, 1, 3, 3, 217.0),
    Sketcher.Constraint("DistanceX", 4, 3, -1, 1, 323.0),
    Sketcher.Constraint("DistanceX", 5, 3, -1, 1, 482.0),
    Sketcher.Constraint("DistanceY", 0, 3, -1, 1, 97.5),
])
doc.recompute()
hole = body.newObject("PartDesign::Hole", "Hole")
hole.Profile = sketch15
hole.ThreadType = "None"
hole.Diameter = 4.2
hole.DepthType = "Dimension"
hole.Depth = 15
hole.DrillPoint = "Flat"
hole.Reversed = True

sketch16 = body.newObject("Sketcher::SketchObject", "Sketch015")
sketch16.AttachmentSupport = (doc.getObject("XZ_Plane"), [""])
sketch16.MapMode = "FlatFace"
sketch16.AttachmentOffset = App.Placement(V(0, 0, 370), App.Rotation())
sketch16.addGeometry([
    Part.LineSegment(V(-1024, -100, 0), V(-1024, 0, 0)),
    Part.LineSegment(V(-1024, 0, 0), V(1024, 0, 0)),
    Part.LineSegment(V(1024, 0, 0), V(1024, -100, 0)),
    Part.LineSegment(V(1024, -100, 0), V(-1024, -100, 0)),
], False)
sketch16.addConstraint([
    Sketcher.Constraint("Coincident", 0, 2, 1, 1),
    Sketcher.Constraint("Coincident", 1, 2, 2, 1),
    Sketcher.Constraint("Coincident", 2, 2, 3, 1),
    Sketcher.Constraint("Coincident", 3, 2, 0, 1),
    Sketcher.Constraint("Vertical", 0),
    Sketcher.Constraint("Horizontal", 1),
    Sketcher.Constraint("Vertical", 2),
    Sketcher.Constraint("Horizontal", 3),
    Sketcher.Constraint("Symmetric", 0, 2, 1, 2, -1, 1),
    Sketcher.Constraint("DistanceX", 1, 1, 1, 2, 2048.0),
    Sketcher.Constraint("DistanceY", 0, 1, 0, 2, 100.0),
])
pocket10 = body.newObject("PartDesign::Pocket", "Pocket009")
pocket10.Profile = sketch16
pocket10.Type = "ThroughAll"
pocket10.Reversed = True
doc.recompute()

datumplane5 = body.newObject("PartDesign::Plane", "DatumPlane004")
datumplane5.AttachmentSupport = (doc.getObject("XY_Plane"), [""])
datumplane5.MapMode = "FlatFace"
datumplane5.AttachmentOffset = App.Placement(V(0, 0, -312.5), App.Rotation())
mirrored6 = body.newObject("PartDesign::Mirrored", "Mirrored005")
mirrored6.Originals = [pocket10]
mirrored6.MirrorPlane = (datumplane5, [""])
body.Tip = mirrored6

sketch17 = body.newObject("Sketcher::SketchObject", "Sketch016")
sketch17.AttachmentSupport = (doc.getObject("XZ_Plane"), [""])
sketch17.MapMode = "FlatFace"
sketch17.AttachmentOffset = App.Placement(V(0, 0, -407), App.Rotation())
sketch17.addGeometry(Part.Circle(V(-44, -557, 0), V(0, 0, 1), 9), False)
sketch17.addConstraint([
    Sketcher.Constraint("Diameter", 0, 17.8),
    Sketcher.Constraint("DistanceY", 0, 3, -1, 1, 556.6),
    Sketcher.Constraint("DistanceX", 0, 3, -1, 1, 43.55),
])
pocket11 = body.newObject("PartDesign::Pocket", "Pocket010")
pocket11.Profile = sketch17
pocket11.Type = "UpToFirst"
pocket11.Reversed = True

sketch18 = body.newObject("Sketcher::SketchObject", "Sketch017")
sketch18.AttachmentSupport = (doc.getObject("XZ_Plane"), [""])
sketch18.MapMode = "FlatFace"
sketch18.AttachmentOffset = App.Placement(V(0, 0, -407), App.Rotation())
sketch18.addGeometry(Part.Circle(V(16, -557, 0), V(0, 0, 1), 9), False)
sketch18.addConstraint([
    Sketcher.Constraint("Diameter", 0, 17.8),
    Sketcher.Constraint("DistanceY", 0, 3, -1, 1, 556.6),
    Sketcher.Constraint("DistanceX", -1, 1, 0, 3, 16.35),
])
pocket12 = body.newObject("PartDesign::Pocket", "Pocket011")
pocket12.Profile = sketch18
pocket12.Type = "UpToFirst"
pocket12.Reversed = True

sketch19 = body.newObject("Sketcher::SketchObject", "Sketch018")
sketch19.AttachmentSupport = (doc.getObject("XZ_Plane"), [""])
sketch19.MapMode = "FlatFace"
sketch19.AttachmentOffset = App.Placement(V(0, 0, -407), App.Rotation())
sketch19.addGeometry(Part.Circle(V(-44, -68, 0), V(0, 0, 1), 9), False)
sketch19.addConstraint([
    Sketcher.Constraint("Diameter", 0, 17.8),
    Sketcher.Constraint("DistanceY", 0, 3, -1, 1, 68.4),
    Sketcher.Constraint("DistanceX", 0, 3, -1, 1, 43.55),
])
pocket13 = body.newObject("PartDesign::Pocket", "Pocket012")
pocket13.Profile = sketch19
pocket13.Type = "UpToFirst"
pocket13.Reversed = True

sketch20 = body.newObject("Sketcher::SketchObject", "Sketch019")
sketch20.AttachmentSupport = (doc.getObject("XZ_Plane"), [""])
sketch20.MapMode = "FlatFace"
sketch20.AttachmentOffset = App.Placement(V(0, 0, -407), App.Rotation())
sketch20.addGeometry(Part.Circle(V(16, -68, 0), V(0, 0, 1), 9), False)
sketch20.addConstraint([
    Sketcher.Constraint("Diameter", 0, 17.8),
    Sketcher.Constraint("DistanceY", 0, 3, -1, 1, 68.4),
    Sketcher.Constraint("DistanceX", -1, 1, 0, 3, 16.35),
])
pocket14 = body.newObject("PartDesign::Pocket", "Pocket013")
pocket14.Profile = sketch20
pocket14.Type = "UpToFirst"
pocket14.Reversed = True

sketch21 = body.newObject("Sketcher::SketchObject", "Sketch020")
sketch21.AttachmentSupport = (doc.getObject("XZ_Plane"), [""])
sketch21.MapMode = "FlatFace"
sketch21.AttachmentOffset = App.Placement(V(0, 0, -407), App.Rotation())
sketch21.addGeometry([
    Part.Circle(V(1142, -118, 0), V(0, 0, 1), 6),
    Part.Circle(V(1142, -512, 0), V(0, 0, 1), 6),
    Part.Circle(V(604, -510, 0), V(0, 0, 1), 6),
    Part.Circle(V(604, -118, 0), V(0, 0, 1), 6),
], False)
sketch21.addConstraint([
    Sketcher.Constraint("Equal", 0, 1),
    Sketcher.Constraint("Equal", 1, 2),
    Sketcher.Constraint("Equal", 2, 3),
    Sketcher.Constraint("Horizontal", 0, 3, 3, 3),
    Sketcher.Constraint("Vertical", 0, 3, 1, 3),
    Sketcher.Constraint("Vertical", 2, 3, 3, 3),
    Sketcher.Constraint("Diameter", 0, 12.5),
    Sketcher.Constraint("DistanceY", 0, 3, -1, 1, 118.0),
    Sketcher.Constraint("DistanceX", 2, 3, 1, 3, 539.0),
    Sketcher.Constraint("DistanceY", 1, 3, 2, 3, 2.0),
    Sketcher.Constraint("DistanceX", -1, 1, 0, 3, 1142.5),
    Sketcher.Constraint("DistanceY", 1, 3, -1, 1, 511.5),
])
doc.recompute()
hole2 = body.newObject("PartDesign::Hole", "Hole001")
hole2.Profile = sketch21
hole2.ThreadType = "None"
hole2.Diameter = 12.5
hole2.DepthType = "Dimension"
hole2.Depth = 95
hole2.DrillPoint = "Flat"
hole2.Reversed = True

sketch22 = body.newObject("Sketcher::SketchObject", "Sketch021")
sketch22.AttachmentSupport = (doc.getObject("XZ_Plane"), [""])
sketch22.MapMode = "FlatFace"
sketch22.AttachmentOffset = App.Placement(V(0, 0, -407), App.Rotation())
sketch22.addGeometry([
    Part.Circle(V(-766, -516, 0), V(0, 0, 1), 7),
    Part.Circle(V(-928, -516, 0), V(0, 0, 1), 7),
    Part.Circle(V(-1081, -516, 0), V(0, 0, 1), 7),
    Part.Circle(V(-1081, -110, 0), V(0, 0, 1), 7),
    Part.Circle(V(-928, -110, 0), V(0, 0, 1), 7),
    Part.Circle(V(-766, -110, 0), V(0, 0, 1), 7),
], False)
sketch22.addConstraint([
    Sketcher.Constraint("Equal", 0, 1),
    Sketcher.Constraint("Equal", 1, 2),
    Sketcher.Constraint("Equal", 2, 3),
    Sketcher.Constraint("Equal", 3, 4),
    Sketcher.Constraint("Equal", 4, 5),
    Sketcher.Constraint("Horizontal", 0, 3, 1, 3),
    Sketcher.Constraint("Horizontal", 1, 3, 2, 3),
    Sketcher.Constraint("Horizontal", 3, 3, 4, 3),
    Sketcher.Constraint("Horizontal", 4, 3, 5, 3),
    Sketcher.Constraint("Vertical", 2, 3, 3, 3),
    Sketcher.Constraint("Vertical", 1, 3, 4, 3),
    Sketcher.Constraint("Vertical", 0, 3, 5, 3),
    Sketcher.Constraint("Diameter", 0, 14.5),
    Sketcher.Constraint("DistanceX", 2, 3, 0, 3, 315.0),
    Sketcher.Constraint("DistanceY", 2, 3, 3, 3, 406.0),
    Sketcher.Constraint("DistanceX", 0, 3, -1, 1, 766.4),
    Sketcher.Constraint("DistanceY", 0, 3, -1, 1, 515.5),
    Sketcher.Constraint("DistanceX", 1, 3, -1, 1, 927.9),
])
doc.recompute()
hole3 = body.newObject("PartDesign::Hole", "Hole002")
hole3.Profile = sketch22
hole3.ThreadType = "None"
hole3.Diameter = 14.5
hole3.DepthType = "Dimension"
hole3.Depth = 95
hole3.DrillPoint = "Flat"
hole3.Reversed = True

sketch23 = body.newObject("Sketcher::SketchObject", "Sketch022")
sketch23.AttachmentSupport = (doc.getObject("XZ_Plane"), [""])
sketch23.MapMode = "FlatFace"
sketch23.AttachmentOffset = App.Placement(V(0, 0, 138), App.Rotation())
sketch23.addGeometry(Part.Circle(V(925, -458, 0), V(0, 0, 1), 22), False)
sketch23.addConstraint([
    Sketcher.Constraint("Diameter", 0, 45.0),
    Sketcher.Constraint("DistanceX", -1, 1, 0, 3, 925.0),
    Sketcher.Constraint("DistanceY", 0, 3, -1, 1, 457.5),
])
pad6 = body.newObject("PartDesign::Pad", "Pad005")
pad6.Profile = sketch23
pad6.Length = 17
pad6.Reversed = True

sketch24 = body.newObject("Sketcher::SketchObject", "Sketch023")
sketch24.AttachmentSupport = (doc.getObject("XZ_Plane"), [""])
sketch24.MapMode = "FlatFace"
sketch24.AttachmentOffset = App.Placement(V(0, 0, 121), App.Rotation())
sketch24.addGeometry(Part.Circle(V(925, -458, 0), V(0, 0, 1), 14), False)
sketch24.addConstraint([
    Sketcher.Constraint("Diameter", 0, 28.0),
    Sketcher.Constraint("DistanceX", -1, 1, 0, 3, 925.0),
    Sketcher.Constraint("DistanceY", 0, 3, -1, 1, 457.5),
])
doc.recompute()
hole4 = body.newObject("PartDesign::Hole", "Hole003")
hole4.Profile = sketch24
hole4.ThreadType = "None"
hole4.Diameter = 28
hole4.DepthType = "Dimension"
hole4.Depth = 30
hole4.DrillPoint = "Angled"
hole4.DrillPointAngle = 118
hole4.Reversed = True

sketch25 = body.newObject("Sketcher::SketchObject", "Sketch024")
sketch25.AttachmentSupport = (doc.getObject("XZ_Plane"), [""])
sketch25.MapMode = "FlatFace"
sketch25.AttachmentOffset = App.Placement(V(0, 0, 138), App.Rotation())
sketch25.addGeometry([
    Part.Circle(V(468, -312, 0), V(0, 0, 1), 190),
    Part.Circle(V(-332, -312, 0), V(0, 0, 1), 190),
], False)
sketch25.addConstraint([
    Sketcher.Constraint("Equal", 0, 1),
    Sketcher.Constraint("Horizontal", 0, 3, 1, 3),
    Sketcher.Constraint("Diameter", 0, 380.0),
    Sketcher.Constraint("DistanceX", -1, 1, 0, 3, 468.0),
    Sketcher.Constraint("DistanceX", 1, 3, -1, 1, 332.0),
    Sketcher.Constraint("DistanceY", 0, 3, -1, 1, 312.5),
])
pad7 = body.newObject("PartDesign::Pad", "Pad006")
pad7.Profile = sketch25
pad7.Length = 10
pad7.Reversed = True

sketch26 = body.newObject("Sketcher::SketchObject", "Sketch025")
sketch26.AttachmentSupport = (doc.getObject("XZ_Plane"), [""])
sketch26.MapMode = "FlatFace"
sketch26.AttachmentOffset = App.Placement(V(0, 0, 128), App.Rotation())
sketch26.addGeometry([
    Part.Circle(V(468, -494.5, 0), V(0, 0, 1), 3.5),
    Part.Circle(V(625.6, -403.5, 0), V(0, 0, 1), 3.5),
    Part.Circle(V(625.6, -221.5, 0), V(0, 0, 1), 3.5),
    Part.Circle(V(468, -130.5, 0), V(0, 0, 1), 3.5),
    Part.Circle(V(310.4, -221.5, 0), V(0, 0, 1), 3.5),
    Part.Circle(V(310.4, -403.5, 0), V(0, 0, 1), 3.5),
    Part.Circle(V(-332, -494.5, 0), V(0, 0, 1), 3.5),
    Part.Circle(V(-174.4, -403.5, 0), V(0, 0, 1), 3.5),
    Part.Circle(V(-174.4, -221.5, 0), V(0, 0, 1), 3.5),
    Part.Circle(V(-332, -130.5, 0), V(0, 0, 1), 3.5),
    Part.Circle(V(-489.6, -221.5, 0), V(0, 0, 1), 3.5),
    Part.Circle(V(-489.6, -403.5, 0), V(0, 0, 1), 3.5),
], False)
sketch26.addConstraint([
    Sketcher.Constraint("Equal", 0, 1),
    Sketcher.Constraint("Equal", 1, 2),
    Sketcher.Constraint("Equal", 2, 3),
    Sketcher.Constraint("Equal", 3, 4),
    Sketcher.Constraint("Equal", 4, 5),
    Sketcher.Constraint("Equal", 5, 6),
    Sketcher.Constraint("Equal", 6, 7),
    Sketcher.Constraint("Equal", 7, 8),
    Sketcher.Constraint("Equal", 8, 9),
    Sketcher.Constraint("Equal", 9, 10),
    Sketcher.Constraint("Equal", 10, 11),
    Sketcher.Constraint("Horizontal", 2, 3, 4, 3),
    Sketcher.Constraint("Horizontal", 1, 3, 5, 3),
    Sketcher.Constraint("Horizontal", 0, 3, 6, 3),
    Sketcher.Constraint("Horizontal", 5, 3, 7, 3),
    Sketcher.Constraint("Horizontal", 4, 3, 8, 3),
    Sketcher.Constraint("Horizontal", 3, 3, 9, 3),
    Sketcher.Constraint("Horizontal", 8, 3, 10, 3),
    Sketcher.Constraint("Horizontal", 7, 3, 11, 3),
    Sketcher.Constraint("Vertical", 1, 3, 2, 3),
    Sketcher.Constraint("Vertical", 0, 3, 3, 3),
    Sketcher.Constraint("Vertical", 4, 3, 5, 3),
    Sketcher.Constraint("Vertical", 7, 3, 8, 3),
    Sketcher.Constraint("Vertical", 6, 3, 9, 3),
    Sketcher.Constraint("Vertical", 10, 3, 11, 3),
    Sketcher.Constraint("Diameter", 0, 7.0),
    Sketcher.Constraint("DistanceX", -1, 1, 0, 3, 468.0),
    Sketcher.Constraint("DistanceX", 6, 3, -1, 1, 332.0),
    Sketcher.Constraint("DistanceY", 0, 3, 1, 3, 91.0),
    Sketcher.Constraint("DistanceY", 1, 3, 2, 3, 182.0),
    Sketcher.Constraint("DistanceY", 2, 3, 3, 3, 91.0),
    Sketcher.Constraint("DistanceX", 10, 3, 4, 3, 800.0),
    Sketcher.Constraint("DistanceY", 0, 3, -1, 1, 494.5),
    Sketcher.Constraint("DistanceX", -1, 1, 1, 3, 625.616623),
    Sketcher.Constraint("DistanceX", -1, 1, 4, 3, 310.383377),
    Sketcher.Constraint("DistanceX", 7, 3, -1, 1, 174.383377),
])
doc.recompute()
hole5 = body.newObject("PartDesign::Hole", "Hole004")
hole5.Profile = sketch26
hole5.ThreadType = "None"
hole5.Diameter = 7
hole5.DepthType = "Dimension"
hole5.Depth = 30
hole5.DrillPoint = "Angled"
hole5.DrillPointAngle = 118
hole5.Reversed = True

sketch27 = body.newObject("Sketcher::SketchObject", "Sketch026")
sketch27.AttachmentSupport = (doc.getObject("XZ_Plane"), [""])
sketch27.MapMode = "FlatFace"
sketch27.AttachmentOffset = App.Placement(V(0, 0, 128), App.Rotation())
sketch27.addGeometry(Part.Circle(V(468, -430, 0), V(0, 0, 1), 40), False)
sketch27.addConstraint([
    Sketcher.Constraint("Diameter", 0, 80.0),
    Sketcher.Constraint("DistanceX", -1, 1, 0, 3, 468.0),
    Sketcher.Constraint("DistanceY", 0, 3, -1, 1, 429.5),
])
pad8 = body.newObject("PartDesign::Pad", "Pad007")
pad8.Profile = sketch27
pad8.Length = 50
pad8.Reversed = True
doc.recompute()

fillet = body.newObject("PartDesign::Fillet", "Fillet")
fillet.Base = (pad8, edges_at(pad8, [(468, -78, -469.5)]))
fillet.Radius = 10

doc.recompute()
